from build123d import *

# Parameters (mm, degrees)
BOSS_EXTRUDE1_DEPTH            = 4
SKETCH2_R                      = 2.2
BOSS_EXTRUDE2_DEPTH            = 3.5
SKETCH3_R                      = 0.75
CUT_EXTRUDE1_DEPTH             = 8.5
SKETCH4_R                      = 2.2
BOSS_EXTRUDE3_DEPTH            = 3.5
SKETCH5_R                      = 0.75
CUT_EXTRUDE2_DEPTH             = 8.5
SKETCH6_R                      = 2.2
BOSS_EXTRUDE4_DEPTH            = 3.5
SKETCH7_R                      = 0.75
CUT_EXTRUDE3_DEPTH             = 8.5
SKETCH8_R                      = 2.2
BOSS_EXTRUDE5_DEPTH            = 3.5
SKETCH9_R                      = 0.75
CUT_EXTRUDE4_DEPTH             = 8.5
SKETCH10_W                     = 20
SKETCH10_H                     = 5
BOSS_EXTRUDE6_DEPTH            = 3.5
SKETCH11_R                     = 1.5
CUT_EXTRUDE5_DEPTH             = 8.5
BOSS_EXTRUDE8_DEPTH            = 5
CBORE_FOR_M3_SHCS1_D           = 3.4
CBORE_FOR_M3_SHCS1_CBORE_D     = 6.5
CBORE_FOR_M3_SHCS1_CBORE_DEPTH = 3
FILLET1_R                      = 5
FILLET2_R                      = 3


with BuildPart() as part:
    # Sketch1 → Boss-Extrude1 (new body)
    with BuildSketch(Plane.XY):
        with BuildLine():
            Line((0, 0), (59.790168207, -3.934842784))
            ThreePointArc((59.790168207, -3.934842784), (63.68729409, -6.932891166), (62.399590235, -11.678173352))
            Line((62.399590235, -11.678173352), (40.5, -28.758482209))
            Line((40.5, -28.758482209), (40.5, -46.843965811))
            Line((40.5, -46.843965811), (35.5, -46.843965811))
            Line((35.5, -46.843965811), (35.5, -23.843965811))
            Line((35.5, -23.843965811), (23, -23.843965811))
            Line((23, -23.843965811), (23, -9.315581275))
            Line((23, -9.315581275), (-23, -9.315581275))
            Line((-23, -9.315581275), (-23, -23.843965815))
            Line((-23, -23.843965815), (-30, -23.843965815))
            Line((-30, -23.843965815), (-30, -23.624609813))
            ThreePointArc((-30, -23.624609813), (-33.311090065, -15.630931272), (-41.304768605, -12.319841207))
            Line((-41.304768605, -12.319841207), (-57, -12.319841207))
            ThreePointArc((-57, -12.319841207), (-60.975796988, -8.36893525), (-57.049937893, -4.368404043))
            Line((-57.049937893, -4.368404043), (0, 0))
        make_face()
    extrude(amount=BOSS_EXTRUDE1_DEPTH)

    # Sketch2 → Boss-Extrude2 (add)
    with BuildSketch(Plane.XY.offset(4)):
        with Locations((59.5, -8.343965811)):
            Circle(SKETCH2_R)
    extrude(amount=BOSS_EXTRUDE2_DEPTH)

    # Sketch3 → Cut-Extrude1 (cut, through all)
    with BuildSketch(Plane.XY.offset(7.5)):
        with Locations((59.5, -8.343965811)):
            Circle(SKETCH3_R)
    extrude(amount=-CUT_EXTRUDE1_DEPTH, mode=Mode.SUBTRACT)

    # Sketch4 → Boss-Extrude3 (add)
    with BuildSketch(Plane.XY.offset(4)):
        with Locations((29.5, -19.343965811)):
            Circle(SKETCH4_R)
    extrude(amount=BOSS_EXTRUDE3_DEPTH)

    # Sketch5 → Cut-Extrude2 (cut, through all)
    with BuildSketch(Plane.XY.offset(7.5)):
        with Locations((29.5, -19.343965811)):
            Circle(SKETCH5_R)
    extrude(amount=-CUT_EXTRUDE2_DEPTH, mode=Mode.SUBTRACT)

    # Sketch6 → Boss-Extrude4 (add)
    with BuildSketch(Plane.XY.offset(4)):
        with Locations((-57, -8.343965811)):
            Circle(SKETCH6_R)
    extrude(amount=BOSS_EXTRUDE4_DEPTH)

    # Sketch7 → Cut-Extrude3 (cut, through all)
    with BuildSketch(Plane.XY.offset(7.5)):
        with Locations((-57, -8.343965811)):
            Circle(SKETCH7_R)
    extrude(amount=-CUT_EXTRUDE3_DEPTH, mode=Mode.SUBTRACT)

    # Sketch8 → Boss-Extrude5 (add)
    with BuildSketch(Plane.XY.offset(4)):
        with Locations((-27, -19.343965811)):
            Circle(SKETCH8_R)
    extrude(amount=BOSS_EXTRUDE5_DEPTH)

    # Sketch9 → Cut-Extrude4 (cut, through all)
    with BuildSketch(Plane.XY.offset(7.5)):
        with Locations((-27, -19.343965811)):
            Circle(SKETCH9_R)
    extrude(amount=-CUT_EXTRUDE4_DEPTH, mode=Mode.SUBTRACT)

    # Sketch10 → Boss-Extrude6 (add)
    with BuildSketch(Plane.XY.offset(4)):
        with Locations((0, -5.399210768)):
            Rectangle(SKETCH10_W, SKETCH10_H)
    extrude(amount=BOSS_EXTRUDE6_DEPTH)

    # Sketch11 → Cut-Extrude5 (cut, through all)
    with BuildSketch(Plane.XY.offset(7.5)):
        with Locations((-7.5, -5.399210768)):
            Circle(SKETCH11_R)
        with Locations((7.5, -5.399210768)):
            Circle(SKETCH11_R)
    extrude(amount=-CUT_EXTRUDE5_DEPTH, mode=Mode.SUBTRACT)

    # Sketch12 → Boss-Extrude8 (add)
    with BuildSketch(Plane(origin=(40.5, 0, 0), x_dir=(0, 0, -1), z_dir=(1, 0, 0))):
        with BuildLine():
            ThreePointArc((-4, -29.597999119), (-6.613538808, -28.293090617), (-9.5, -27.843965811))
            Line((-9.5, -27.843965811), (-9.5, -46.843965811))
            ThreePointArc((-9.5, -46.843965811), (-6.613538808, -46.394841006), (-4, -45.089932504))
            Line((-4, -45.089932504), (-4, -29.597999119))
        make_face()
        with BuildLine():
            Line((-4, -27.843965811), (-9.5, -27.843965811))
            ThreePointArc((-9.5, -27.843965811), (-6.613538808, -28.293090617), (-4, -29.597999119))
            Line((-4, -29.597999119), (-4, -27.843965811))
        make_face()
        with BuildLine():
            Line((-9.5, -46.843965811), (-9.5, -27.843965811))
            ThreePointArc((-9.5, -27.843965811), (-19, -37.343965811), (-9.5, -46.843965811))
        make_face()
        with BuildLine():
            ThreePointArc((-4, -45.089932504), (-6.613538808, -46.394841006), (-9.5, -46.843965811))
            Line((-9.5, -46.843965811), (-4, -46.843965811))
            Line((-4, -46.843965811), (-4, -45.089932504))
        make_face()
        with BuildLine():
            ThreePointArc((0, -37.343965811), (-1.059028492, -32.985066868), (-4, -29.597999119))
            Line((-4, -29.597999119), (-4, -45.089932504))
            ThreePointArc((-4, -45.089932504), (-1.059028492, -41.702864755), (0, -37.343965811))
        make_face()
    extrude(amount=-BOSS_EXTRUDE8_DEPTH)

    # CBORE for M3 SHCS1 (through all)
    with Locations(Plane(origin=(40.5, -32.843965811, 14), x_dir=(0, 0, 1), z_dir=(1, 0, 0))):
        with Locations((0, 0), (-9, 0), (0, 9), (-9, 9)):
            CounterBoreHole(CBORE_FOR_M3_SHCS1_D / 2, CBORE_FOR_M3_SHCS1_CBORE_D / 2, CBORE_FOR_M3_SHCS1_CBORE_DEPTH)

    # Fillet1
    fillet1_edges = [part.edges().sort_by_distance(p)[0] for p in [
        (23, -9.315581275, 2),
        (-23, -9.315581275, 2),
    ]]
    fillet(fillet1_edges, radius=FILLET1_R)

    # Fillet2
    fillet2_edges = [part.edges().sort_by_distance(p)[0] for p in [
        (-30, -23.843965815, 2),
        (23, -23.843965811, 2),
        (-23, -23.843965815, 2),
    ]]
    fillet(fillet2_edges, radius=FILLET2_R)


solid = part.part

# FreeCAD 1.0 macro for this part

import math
import FreeCAD as App
import Part
import Sketcher
from FreeCAD import Vector
Q = App.Units.Quantity


def edges_at(feature, points):
    """Names of the edges that pass closest to the given points."""
    edges = feature.Shape.Edges
    near = lambda p: min(range(len(edges)), key=lambda i: edges[i].distToShape(Part.Vertex(*p))[0])
    return sorted({f"Edge{near(p) + 1}" for p in points})


def add_polygon(sketch, points):
    """Adds a closed chain of lines whose ends are joined by coincident constraints."""
    first, n = sketch.GeometryCount, len(points)
    for a, b in zip(points, points[1:] + points[:1]):
        sketch.addGeometry(Part.LineSegment(App.Vector(*a, 0), App.Vector(*b, 0)), False)
    for i in range(n):
        sketch.addConstraint(Sketcher.Constraint("Coincident", first + i, 2, first + (i + 1) % n, 1))

doc = App.newDocument("Part")
body = doc.addObject("PartDesign::Body", "Body")

# Sketch on XY plane
sketch1 = doc.addObject("Sketcher::SketchObject", "Sketch")
body.addObject(sketch1)
sketch1.AttachmentSupport = (doc.XY_Plane, [""])
sketch1.MapMode = "FlatFace"
sketch1.addGeometry([
    Part.LineSegment(Vector(59.790168, -3.934843, 0), Vector(0, 0, 0)),  # 0
    Part.LineSegment(Vector(0, 0, 0), Vector(-57.049938, -4.368404, 0)),  # 1
    Part.ArcOfCircle(Part.Circle(Vector(-57, -8.343966, 0), Vector(0, 0, 1), 3.975875), math.radians(90.719667), math.radians(270)),  # 2
    Part.LineSegment(Vector(-57, -12.319841, 0), Vector(-41.304769, -12.319841, 0)),  # 3
    Part.ArcOfCircle(Part.Circle(Vector(-41.304769, -23.62461, 0), Vector(0, 0, 1), 11.304769), math.radians(0), math.radians(90)),  # 4
    Part.LineSegment(Vector(-30, -23.62461, 0), Vector(-30, -23.843966, 0)),  # 5
    Part.LineSegment(Vector(-30, -23.843966, 0), Vector(-23, -23.843966, 0)),  # 6
    Part.LineSegment(Vector(-23, -23.843966, 0), Vector(-23, -9.315581, 0)),  # 7
    Part.LineSegment(Vector(-23, -9.315581, 0), Vector(23, -9.315581, 0)),  # 8
    Part.LineSegment(Vector(23, -9.315581, 0), Vector(23, -23.843966, 0)),  # 9
    Part.LineSegment(Vector(23, -23.843966, 0), Vector(35.5, -23.843966, 0)),  # 10
    Part.LineSegment(Vector(35.5, -23.843966, 0), Vector(35.5, -46.843966, 0)),  # 11
    Part.LineSegment(Vector(35.5, -46.843966, 0), Vector(40.5, -46.843966, 0)),  # 12
    Part.LineSegment(Vector(40.5, -46.843966, 0), Vector(40.5, -28.758482, 0)),  # 13
    Part.LineSegment(Vector(40.5, -28.758482, 0), Vector(62.39959, -11.678173, 0)),  # 14
    Part.ArcOfCircle(Part.Circle(Vector(59.5, -8.343966, 0), Vector(0, 0, 1), 4.418661), math.radians(-48.98818), math.radians(86.234745)),  # 15
], False)
sketch1.addConstraint([
    Sketcher.Constraint("Coincident", 0, 2, 1, 1),
    Sketcher.Constraint("Coincident", 1, 2, 2, 1),
    Sketcher.Constraint("Tangent", 2, 2, 3, 1),
    Sketcher.Constraint("Tangent", 3, 2, 4, 2),
    Sketcher.Constraint("Tangent", 4, 1, 5, 1),
    Sketcher.Constraint("Coincident", 5, 2, 6, 1),
    Sketcher.Constraint("Coincident", 6, 2, 7, 1),
    Sketcher.Constraint("Coincident", 7, 2, 8, 1),
    Sketcher.Constraint("Coincident", 8, 2, 9, 1),
    Sketcher.Constraint("Coincident", 9, 2, 10, 1),
    Sketcher.Constraint("Coincident", 10, 2, 11, 1),
    Sketcher.Constraint("Coincident", 11, 2, 12, 1),
    Sketcher.Constraint("Coincident", 12, 2, 13, 1),
    Sketcher.Constraint("Coincident", 13, 2, 14, 1),
    Sketcher.Constraint("Coincident", 14, 2, 15, 1),
    Sketcher.Constraint("Tangent", 15, 2, 0, 1),
    Sketcher.Constraint("Horizontal", 3),
    Sketcher.Constraint("Vertical", 5),
    Sketcher.Constraint("Horizontal", 6),
    Sketcher.Constraint("Vertical", 7),
    Sketcher.Constraint("Horizontal", 8),
    Sketcher.Constraint("Vertical", 9),
    Sketcher.Constraint("Horizontal", 10),
    Sketcher.Constraint("Vertical", 11),
    Sketcher.Constraint("Horizontal", 12),
    Sketcher.Constraint("Vertical", 13),
    Sketcher.Constraint("Coincident", 0, 2, -1, 1),
    Sketcher.Constraint("Symmetric", 6, 2, 9, 2, -2),
    Sketcher.Constraint("Horizontal", 2, 3, 15, 3),
    Sketcher.Constraint("DistanceX", 6, 1, 6, 2, Q("7 mm")),
    Sketcher.Constraint("DistanceX", 8, 1, 8, 2, Q("46 mm")),
    Sketcher.Constraint("DistanceX", 12, 1, 12, 2, Q("5 mm")),
    Sketcher.Constraint("DistanceY", 11, 2, 11, 1, Q("23 mm")),
    Sketcher.Constraint("DistanceX", 10, 1, 10, 2, Q("12.5 mm")),
    Sketcher.Constraint("DistanceX", 2, 3, -1, 1, Q("57 mm")),
    Sketcher.Constraint("DistanceX", 10, 2, 15, 3, Q("24 mm")),
    Sketcher.Constraint("DistanceY", 5, 2, 2, 3, Q("15.5 mm")),
    Sketcher.Constraint("Radius", 4, Q("11.304769 mm")),
    Sketcher.Constraint("Radius", 15, Q("4.418661 mm")),
    Sketcher.Constraint("Radius", 2, Q("3.975875 mm")),
    Sketcher.Constraint("DistanceY", 13, 2, 8, 2, Q("19.442901 mm")),
    Sketcher.Constraint("Distance", 1, Q("57.216941 mm")),
    Sketcher.Constraint("Distance", 14, Q("27.772811 mm")),
    Sketcher.Constraint("DistanceY", 7, 1, 7, 2, Q("14.528385 mm")),
    Sketcher.Constraint("DistanceY", 4, 3, -1, 1, Q("23.62461 mm")),
])
pad1 = doc.addObject("PartDesign::Pad", "Pad")
body.addObject(pad1)
pad1.Profile = sketch1
pad1.Length = 4

# Sketch on XY plane
sketch2 = doc.addObject("Sketcher::SketchObject", "Sketch001")
body.addObject(sketch2)
sketch2.AttachmentSupport = (doc.XY_Plane, [""])
sketch2.MapMode = "FlatFace"
sketch2.AttachmentOffset = App.Placement(Vector(0, 0, 4), App.Rotation())
sketch2.addGeometry(Part.Circle(Vector(59.5, -8.343966, 0), Vector(0, 0, 1), 2.2), False)
sketch2.addConstraint([
    Sketcher.Constraint("Diameter", 0, Q("4.4 mm")),
    Sketcher.Constraint("DistanceX", -1, 1, 0, 3, Q("59.5 mm")),
    Sketcher.Constraint("DistanceY", 0, 3, -1, 1, Q("8.343966 mm")),
])
pad2 = doc.addObject("PartDesign::Pad", "Pad001")
body.addObject(pad2)
pad2.Profile = sketch2
pad2.Length = 3.5

# Sketch on XY plane
sketch3 = doc.addObject("Sketcher::SketchObject", "Sketch002")
body.addObject(sketch3)
sketch3.AttachmentSupport = (doc.XY_Plane, [""])
sketch3.MapMode = "FlatFace"
sketch3.AttachmentOffset = App.Placement(Vector(0, 0, 7.5), App.Rotation())
sketch3.addGeometry(Part.Circle(Vector(59.5, -8.343966, 0), Vector(0, 0, 1), 0.75), False)
sketch3.addConstraint([
    Sketcher.Constraint("Diameter", 0, Q("1.5 mm")),
    Sketcher.Constraint("DistanceX", -1, 1, 0, 3, Q("59.5 mm")),
    Sketcher.Constraint("DistanceY", 0, 3, -1, 1, Q("8.343966 mm")),
])
pocket1 = doc.addObject("PartDesign::Pocket", "Pocket")
body.addObject(pocket1)
pocket1.Profile = sketch3
pocket1.Type = "ThroughAll"

# Sketch on XY plane
sketch4 = doc.addObject("Sketcher::SketchObject", "Sketch003")
body.addObject(sketch4)
sketch4.AttachmentSupport = (doc.XY_Plane, [""])
sketch4.MapMode = "FlatFace"
sketch4.AttachmentOffset = App.Placement(Vector(0, 0, 4), App.Rotation())
sketch4.addGeometry(Part.Circle(Vector(29.5, -19.343966, 0), Vector(0, 0, 1), 2.2), False)
sketch4.addConstraint([
    Sketcher.Constraint("Diameter", 0, Q("4.4 mm")),
    Sketcher.Constraint("DistanceX", -1, 1, 0, 3, Q("29.5 mm")),
    Sketcher.Constraint("DistanceY", 0, 3, -1, 1, Q("19.343966 mm")),
])
pad3 = doc.addObject("PartDesign::Pad", "Pad002")
body.addObject(pad3)
pad3.Profile = sketch4
pad3.Length = 3.5

# Sketch on XY plane
sketch5 = doc.addObject("Sketcher::SketchObject", "Sketch004")
body.addObject(sketch5)
sketch5.AttachmentSupport = (doc.XY_Plane, [""])
sketch5.MapMode = "FlatFace"
sketch5.AttachmentOffset = App.Placement(Vector(0, 0, 7.5), App.Rotation())
sketch5.addGeometry(Part.Circle(Vector(29.5, -19.343966, 0), Vector(0, 0, 1), 0.75), False)
sketch5.addConstraint([
    Sketcher.Constraint("Diameter", 0, Q("1.5 mm")),
    Sketcher.Constraint("DistanceX", -1, 1, 0, 3, Q("29.5 mm")),
    Sketcher.Constraint("DistanceY", 0, 3, -1, 1, Q("19.343966 mm")),
])
pocket2 = doc.addObject("PartDesign::Pocket", "Pocket001")
body.addObject(pocket2)
pocket2.Profile = sketch5
pocket2.Type = "ThroughAll"

# Sketch on XY plane
sketch6 = doc.addObject("Sketcher::SketchObject", "Sketch005")
body.addObject(sketch6)
sketch6.AttachmentSupport = (doc.XY_Plane, [""])
sketch6.MapMode = "FlatFace"
sketch6.AttachmentOffset = App.Placement(Vector(0, 0, 4), App.Rotation())
sketch6.addGeometry(Part.Circle(Vector(-57, -8.343966, 0), Vector(0, 0, 1), 2.2), False)
sketch6.addConstraint([
    Sketcher.Constraint("Diameter", 0, Q("4.4 mm")),
    Sketcher.Constraint("DistanceX", 0, 3, -1, 1, Q("57 mm")),
    Sketcher.Constraint("DistanceY", 0, 3, -1, 1, Q("8.343966 mm")),
])
pad4 = doc.addObject("PartDesign::Pad", "Pad003")
body.addObject(pad4)
pad4.Profile = sketch6
pad4.Length = 3.5

# Sketch on XY plane
sketch7 = doc.addObject("Sketcher::SketchObject", "Sketch006")
body.addObject(sketch7)
sketch7.AttachmentSupport = (doc.XY_Plane, [""])
sketch7.MapMode = "FlatFace"
sketch7.AttachmentOffset = App.Placement(Vector(0, 0, 7.5), App.Rotation())
sketch7.addGeometry(Part.Circle(Vector(-57, -8.343966, 0), Vector(0, 0, 1), 0.75), False)
sketch7.addConstraint([
    Sketcher.Constraint("Diameter", 0, Q("1.5 mm")),
    Sketcher.Constraint("DistanceX", 0, 3, -1, 1, Q("57 mm")),
    Sketcher.Constraint("DistanceY", 0, 3, -1, 1, Q("8.343966 mm")),
])
pocket3 = doc.addObject("PartDesign::Pocket", "Pocket002")
body.addObject(pocket3)
pocket3.Profile = sketch7
pocket3.Type = "ThroughAll"

# Sketch on XY plane
sketch8 = doc.addObject("Sketcher::SketchObject", "Sketch007")
body.addObject(sketch8)
sketch8.AttachmentSupport = (doc.XY_Plane, [""])
sketch8.MapMode = "FlatFace"
sketch8.AttachmentOffset = App.Placement(Vector(0, 0, 4), App.Rotation())
sketch8.addGeometry(Part.Circle(Vector(-27, -19.343966, 0), Vector(0, 0, 1), 2.2), False)
sketch8.addConstraint([
    Sketcher.Constraint("Diameter", 0, Q("4.4 mm")),
    Sketcher.Constraint("DistanceX", 0, 3, -1, 1, Q("27 mm")),
    Sketcher.Constraint("DistanceY", 0, 3, -1, 1, Q("19.343966 mm")),
])
pad5 = doc.addObject("PartDesign::Pad", "Pad004")
body.addObject(pad5)
pad5.Profile = sketch8
pad5.Length = 3.5

# Sketch on XY plane
sketch9 = doc.addObject("Sketcher::SketchObject", "Sketch008")
body.addObject(sketch9)
sketch9.AttachmentSupport = (doc.XY_Plane, [""])
sketch9.MapMode = "FlatFace"
sketch9.AttachmentOffset = App.Placement(Vector(0, 0, 7.5), App.Rotation())
sketch9.addGeometry(Part.Circle(Vector(-27, -19.343966, 0), Vector(0, 0, 1), 0.75), False)
sketch9.addConstraint([
    Sketcher.Constraint("Diameter", 0, Q("1.5 mm")),
    Sketcher.Constraint("DistanceX", 0, 3, -1, 1, Q("27 mm")),
    Sketcher.Constraint("DistanceY", 0, 3, -1, 1, Q("19.343966 mm")),
])
pocket4 = doc.addObject("PartDesign::Pocket", "Pocket003")
body.addObject(pocket4)
pocket4.Profile = sketch9
pocket4.Type = "ThroughAll"

# Sketch on XY plane
sketch10 = doc.addObject("Sketcher::SketchObject", "Sketch009")
body.addObject(sketch10)
sketch10.AttachmentSupport = (doc.XY_Plane, [""])
sketch10.MapMode = "FlatFace"
sketch10.AttachmentOffset = App.Placement(Vector(0, 0, 4), App.Rotation())
add_polygon(sketch10, [(-10, -2.899211), (-10, -7.899211), (10, -7.899211), (10, -2.899211)])  # lines 0-3
sketch10.addConstraint([
    Sketcher.Constraint("Vertical", 0),
    Sketcher.Constraint("Horizontal", 1),
    Sketcher.Constraint("Vertical", 2),
    Sketcher.Constraint("Horizontal", 3),
    Sketcher.Constraint("DistanceX", 1, 1, 1, 2, Q("20 mm")),
    Sketcher.Constraint("DistanceY", 0, 2, 0, 1, Q("5 mm")),
    Sketcher.Constraint("DistanceX", 0, 2, -1, 1, Q("10 mm")),
    Sketcher.Constraint("DistanceY", 0, 2, -1, 1, Q("7.899211 mm")),
])
pad6 = doc.addObject("PartDesign::Pad", "Pad005")
body.addObject(pad6)
pad6.Profile = sketch10
pad6.Length = 3.5

# Sketch on XY plane
sketch11 = doc.addObject("Sketcher::SketchObject", "Sketch010")
body.addObject(sketch11)
sketch11.AttachmentSupport = (doc.XY_Plane, [""])
sketch11.MapMode = "FlatFace"
sketch11.AttachmentOffset = App.Placement(Vector(0, 0, 7.5), App.Rotation())
sketch11.addGeometry([
    Part.Circle(Vector(-7.5, -5.399211, 0), Vector(0, 0, 1), 1.5),
    Part.Circle(Vector(7.5, -5.399211, 0), Vector(0, 0, 1), 1.5),
], False)
sketch11.addConstraint([
    Sketcher.Constraint("Equal", 0, 1),
    Sketcher.Constraint("Symmetric", 0, 3, 1, 3, -2),
    Sketcher.Constraint("Diameter", 0, Q("3 mm")),
    Sketcher.Constraint("DistanceX", 0, 3, 1, 3, Q("15 mm")),
    Sketcher.Constraint("DistanceY", 0, 3, -1, 1, Q("5.399211 mm")),
])
pocket5 = doc.addObject("PartDesign::Pocket", "Pocket004")
body.addObject(pocket5)
pocket5.Profile = sketch11
pocket5.Type = "ThroughAll"

# Sketch on YZ plane
sketch12 = doc.addObject("Sketcher::SketchObject", "Sketch011")
body.addObject(sketch12)
sketch12.AttachmentSupport = (doc.YZ_Plane, [""])
sketch12.MapMode = "FlatFace"
sketch12.AttachmentOffset = App.Placement(Vector(0, 0, 40.5), App.Rotation())
sketch12.addGeometry([
    Part.LineSegment(Vector(-27.843966, 4, 0), Vector(-27.843966, 9.5, 0)),  # 0
    Part.ArcOfCircle(Part.Circle(Vector(-37.343966, 9.5, 0), Vector(0, 0, 1), 9.5), math.radians(0), math.radians(180)),  # 1
    Part.LineSegment(Vector(-46.843966, 9.5, 0), Vector(-46.843966, 4, 0)),  # 2
    Part.LineSegment(Vector(-46.843966, 4, 0), Vector(-45.089933, 4, 0)),  # 3
    Part.ArcOfCircle(Part.Circle(Vector(-37.343966, 9.5, 0), Vector(0, 0, 1), 9.5), math.radians(-144.62346), math.radians(-90)),  # 4
    Part.ArcOfCircle(Part.Circle(Vector(-37.343966, 9.5, 0), Vector(0, 0, 1), 9.5), math.radians(-90), math.radians(-35.37654)),  # 5
    Part.LineSegment(Vector(-29.597999, 4, 0), Vector(-27.843966, 4, 0)),  # 6
], False)
sketch12.addConstraint([
    Sketcher.Constraint("Tangent", 0, 2, 1, 1),
    Sketcher.Constraint("Tangent", 1, 2, 2, 1),
    Sketcher.Constraint("Coincident", 2, 2, 3, 1),
    Sketcher.Constraint("Coincident", 3, 2, 4, 1),
    Sketcher.Constraint("Tangent", 4, 2, 5, 1),
    Sketcher.Constraint("Coincident", 5, 2, 6, 1),
    Sketcher.Constraint("Coincident", 6, 2, 0, 1),
    Sketcher.Constraint("Vertical", 0),
    Sketcher.Constraint("Vertical", 2),
    Sketcher.Constraint("Horizontal", 3),
    Sketcher.Constraint("Horizontal", 6),
    Sketcher.Constraint("Coincident", 4, 3, 1, 3),
    Sketcher.Constraint("Equal", 1, 4),
    Sketcher.Constraint("Equal", 4, 5),
    Sketcher.Constraint("PointOnObject", 4, 2, -1),
    Sketcher.Constraint("Horizontal", 3, 2, 5, 2),
    Sketcher.Constraint("Vertical", 5, 3, 4, 2),
    Sketcher.Constraint("Radius", 1, Q("9.5 mm")),
    Sketcher.Constraint("DistanceY", 0, 1, 0, 2, Q("5.5 mm")),
    Sketcher.Constraint("DistanceX", 5, 2, -1, 1, Q("29.597999 mm")),
])
pad7 = doc.addObject("PartDesign::Pad", "Pad006")
body.addObject(pad7)
pad7.Profile = sketch12
pad7.Length = 5
pad7.Reversed = True

# Sketch on YZ plane
sketch13 = doc.addObject("Sketcher::SketchObject", "Sketch012")
body.addObject(sketch13)
sketch13.AttachmentSupport = (doc.YZ_Plane, [""])
sketch13.MapMode = "FlatFace"
sketch13.AttachmentOffset = App.Placement(Vector(0, 0, 40.5), App.Rotation())
sketch13.addGeometry([
    Part.Circle(Vector(-32.843966, 14, 0), Vector(0, 0, 1), 1.7),
    Part.Circle(Vector(-32.843966, 5, 0), Vector(0, 0, 1), 1.7),
    Part.Circle(Vector(-41.843966, 14, 0), Vector(0, 0, 1), 1.7),
    Part.Circle(Vector(-41.843966, 5, 0), Vector(0, 0, 1), 1.7),
], False)
sketch13.addConstraint([
    Sketcher.Constraint("Equal", 0, 1),
    Sketcher.Constraint("Equal", 1, 2),
    Sketcher.Constraint("Equal", 2, 3),
    Sketcher.Constraint("Horizontal", 0, 3, 2, 3),
    Sketcher.Constraint("Horizontal", 1, 3, 3, 3),
    Sketcher.Constraint("Vertical", 0, 3, 1, 3),
    Sketcher.Constraint("Vertical", 2, 3, 3, 3),
    Sketcher.Constraint("Diameter", 0, Q("3.4 mm")),
    Sketcher.Constraint("DistanceY", -1, 1, 0, 3, Q("14 mm")),
    Sketcher.Constraint("DistanceY", -1, 1, 1, 3, Q("5 mm")),
    Sketcher.Constraint("DistanceX", 2, 3, 0, 3, Q("9 mm")),
    Sketcher.Constraint("DistanceX", 0, 3, -1, 1, Q("32.843966 mm")),
])
doc.recompute()
hole = doc.addObject("PartDesign::Hole", "Hole")
body.addObject(hole)
hole.Profile = sketch13
hole.ThreadType = "None"
hole.Diameter = 3.4
hole.DepthType = "ThroughAll"
hole.HoleCutType = "Counterbore"
hole.HoleCutDiameter = 6.5
hole.HoleCutDepth = 3
doc.recompute()

fillet = doc.addObject("PartDesign::Fillet", "Fillet")
body.addObject(fillet)
fillet.Base = (hole, edges_at(hole, [(23, -9.316, 2), (-23, -9.316, 2)]))
fillet.Radius = 5
doc.recompute()

fillet2 = doc.addObject("PartDesign::Fillet", "Fillet001")
body.addObject(fillet2)
fillet2.Base = (fillet, edges_at(fillet, [(-30, -23.844, 2), (23, -23.844, 2), (-23, -23.844, 2)]))
fillet2.Radius = 3

doc.recompute()
